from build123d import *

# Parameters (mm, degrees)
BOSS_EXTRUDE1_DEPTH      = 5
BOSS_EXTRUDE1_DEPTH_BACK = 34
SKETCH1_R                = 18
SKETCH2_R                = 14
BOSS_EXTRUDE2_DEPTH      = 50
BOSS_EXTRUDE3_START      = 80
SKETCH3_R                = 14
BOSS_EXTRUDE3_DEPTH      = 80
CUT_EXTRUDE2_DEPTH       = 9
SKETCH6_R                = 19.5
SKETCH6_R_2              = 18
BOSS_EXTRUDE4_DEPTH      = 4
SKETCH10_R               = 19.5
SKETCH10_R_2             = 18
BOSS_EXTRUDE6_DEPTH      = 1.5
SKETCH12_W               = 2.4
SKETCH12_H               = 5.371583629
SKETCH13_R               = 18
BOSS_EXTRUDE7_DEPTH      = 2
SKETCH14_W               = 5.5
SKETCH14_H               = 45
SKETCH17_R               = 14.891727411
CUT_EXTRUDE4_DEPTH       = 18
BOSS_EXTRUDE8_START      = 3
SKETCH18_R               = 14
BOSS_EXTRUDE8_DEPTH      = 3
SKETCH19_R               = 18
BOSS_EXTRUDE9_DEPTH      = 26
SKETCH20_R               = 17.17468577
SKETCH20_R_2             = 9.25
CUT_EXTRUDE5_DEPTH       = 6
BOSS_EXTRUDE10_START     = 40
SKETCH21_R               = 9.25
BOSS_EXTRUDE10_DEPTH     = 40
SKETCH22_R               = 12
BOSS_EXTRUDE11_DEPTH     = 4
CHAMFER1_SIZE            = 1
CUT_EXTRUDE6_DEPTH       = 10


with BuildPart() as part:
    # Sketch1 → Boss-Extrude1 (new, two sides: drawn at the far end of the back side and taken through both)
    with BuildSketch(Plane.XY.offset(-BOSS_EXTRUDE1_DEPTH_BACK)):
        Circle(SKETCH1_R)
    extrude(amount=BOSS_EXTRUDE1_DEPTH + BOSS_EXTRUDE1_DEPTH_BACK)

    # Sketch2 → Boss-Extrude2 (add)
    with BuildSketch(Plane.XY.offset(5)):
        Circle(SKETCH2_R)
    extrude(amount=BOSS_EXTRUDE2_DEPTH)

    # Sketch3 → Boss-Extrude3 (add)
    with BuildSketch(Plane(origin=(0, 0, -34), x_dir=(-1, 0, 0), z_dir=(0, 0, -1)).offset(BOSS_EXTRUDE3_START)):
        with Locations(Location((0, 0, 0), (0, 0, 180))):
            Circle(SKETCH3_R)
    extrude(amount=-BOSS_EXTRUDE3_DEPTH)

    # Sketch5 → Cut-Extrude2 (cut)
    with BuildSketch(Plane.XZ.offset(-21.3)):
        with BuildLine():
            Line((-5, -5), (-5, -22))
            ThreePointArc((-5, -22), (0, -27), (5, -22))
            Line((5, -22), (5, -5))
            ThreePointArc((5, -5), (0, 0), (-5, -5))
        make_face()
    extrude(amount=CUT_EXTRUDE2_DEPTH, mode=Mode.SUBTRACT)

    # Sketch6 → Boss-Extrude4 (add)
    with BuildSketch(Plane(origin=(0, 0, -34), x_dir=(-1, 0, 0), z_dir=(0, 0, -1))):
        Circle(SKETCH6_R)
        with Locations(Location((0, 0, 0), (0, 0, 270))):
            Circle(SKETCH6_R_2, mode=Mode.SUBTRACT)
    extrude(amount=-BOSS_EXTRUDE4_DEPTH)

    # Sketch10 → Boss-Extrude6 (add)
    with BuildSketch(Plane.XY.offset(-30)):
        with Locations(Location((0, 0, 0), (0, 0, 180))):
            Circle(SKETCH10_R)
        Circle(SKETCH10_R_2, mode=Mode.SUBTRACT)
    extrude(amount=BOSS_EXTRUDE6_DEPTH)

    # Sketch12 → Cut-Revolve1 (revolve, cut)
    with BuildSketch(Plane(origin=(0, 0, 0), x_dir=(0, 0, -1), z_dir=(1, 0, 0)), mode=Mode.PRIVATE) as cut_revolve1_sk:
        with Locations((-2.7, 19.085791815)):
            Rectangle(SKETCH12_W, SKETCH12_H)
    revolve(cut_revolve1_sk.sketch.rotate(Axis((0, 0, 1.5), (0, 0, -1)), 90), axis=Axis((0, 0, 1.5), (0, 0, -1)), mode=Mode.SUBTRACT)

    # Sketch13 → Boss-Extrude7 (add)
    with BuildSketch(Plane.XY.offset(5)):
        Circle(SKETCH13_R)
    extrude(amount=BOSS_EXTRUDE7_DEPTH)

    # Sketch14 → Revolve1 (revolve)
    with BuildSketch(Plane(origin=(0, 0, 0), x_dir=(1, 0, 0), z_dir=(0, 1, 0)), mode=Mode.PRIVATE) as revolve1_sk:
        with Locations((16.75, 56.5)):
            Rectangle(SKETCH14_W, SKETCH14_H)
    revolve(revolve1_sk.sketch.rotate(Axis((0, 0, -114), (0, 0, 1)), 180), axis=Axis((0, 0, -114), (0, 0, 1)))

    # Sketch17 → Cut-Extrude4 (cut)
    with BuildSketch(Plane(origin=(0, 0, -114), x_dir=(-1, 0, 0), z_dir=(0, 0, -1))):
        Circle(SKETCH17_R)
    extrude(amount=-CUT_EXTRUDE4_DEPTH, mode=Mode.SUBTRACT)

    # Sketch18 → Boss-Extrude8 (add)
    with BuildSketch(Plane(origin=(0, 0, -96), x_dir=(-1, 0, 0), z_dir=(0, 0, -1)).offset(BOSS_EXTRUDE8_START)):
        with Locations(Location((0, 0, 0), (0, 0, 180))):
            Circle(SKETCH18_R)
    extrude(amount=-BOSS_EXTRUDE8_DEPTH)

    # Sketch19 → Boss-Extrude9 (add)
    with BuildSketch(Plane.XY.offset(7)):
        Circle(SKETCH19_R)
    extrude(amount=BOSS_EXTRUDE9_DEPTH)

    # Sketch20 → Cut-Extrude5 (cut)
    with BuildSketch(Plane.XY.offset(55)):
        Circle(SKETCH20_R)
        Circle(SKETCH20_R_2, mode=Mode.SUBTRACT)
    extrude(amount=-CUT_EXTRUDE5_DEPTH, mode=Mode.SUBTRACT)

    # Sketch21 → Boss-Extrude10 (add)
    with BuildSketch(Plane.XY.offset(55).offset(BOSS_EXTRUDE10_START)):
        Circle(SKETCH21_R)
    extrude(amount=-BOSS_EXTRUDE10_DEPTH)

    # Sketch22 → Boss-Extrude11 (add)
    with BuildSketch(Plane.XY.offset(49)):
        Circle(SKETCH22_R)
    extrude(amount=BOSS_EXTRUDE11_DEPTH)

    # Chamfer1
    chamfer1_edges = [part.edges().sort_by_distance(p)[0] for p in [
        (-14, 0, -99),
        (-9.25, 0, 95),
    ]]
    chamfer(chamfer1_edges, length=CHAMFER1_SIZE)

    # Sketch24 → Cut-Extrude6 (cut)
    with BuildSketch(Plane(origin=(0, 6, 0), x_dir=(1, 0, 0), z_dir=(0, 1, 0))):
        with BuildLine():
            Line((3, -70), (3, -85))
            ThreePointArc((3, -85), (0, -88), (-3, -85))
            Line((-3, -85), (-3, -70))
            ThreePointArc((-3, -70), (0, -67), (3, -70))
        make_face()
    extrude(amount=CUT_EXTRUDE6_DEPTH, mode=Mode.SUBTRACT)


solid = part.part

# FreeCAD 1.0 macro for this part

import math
import FreeCAD as App
import Part
import Sketcher

V = App.Vector
Q = App.Units.Quantity


def edges_at(feature, points):
    """Names of the edges that pass closest to the given points."""
    edges = feature.Shape.Edges
    near = lambda p: min(range(len(edges)), key=lambda i: edges[i].distToShape(Part.Vertex(*p))[0])
    return sorted({f"Edge{near(p) + 1}" for p in points})

doc = App.newDocument("Part")
body = doc.addObject("PartDesign::Body", "Body")

# Sketch on XY plane
sketch1 = body.newObject("Sketcher::SketchObject", "Sketch")
sketch1.AttachmentSupport = (doc.getObject("XY_Plane"), [""])
sketch1.MapMode = "FlatFace"
sketch1.addGeometry(Part.Circle(V(0, 0, 0), V(0, 0, 1), 18), False)
sketch1.addConstraint(Sketcher.Constraint("Coincident", 0, 3, -1, 1))
sketch1.addConstraint(Sketcher.Constraint("Diameter", 0, Q("36 mm")))
pad1 = body.newObject("PartDesign::Pad", "Pad")
pad1.Profile = sketch1
pad1.Type = "TwoLengths"
pad1.Length = 5
pad1.Length2 = 34

# Sketch on XY plane
sketch2 = body.newObject("Sketcher::SketchObject", "Sketch001")
sketch2.AttachmentSupport = (doc.getObject("XY_Plane"), [""])
sketch2.MapMode = "FlatFace"
sketch2.AttachmentOffset = App.Placement(V(0, 0, 5), App.Rotation())
sketch2.addGeometry(Part.Circle(V(0, 0, 0), V(0, 0, 1), 14), False)
sketch2.addConstraint(Sketcher.Constraint("Coincident", 0, 3, -1, 1))
sketch2.addConstraint(Sketcher.Constraint("Diameter", 0, Q("28 mm")))
pad2 = body.newObject("PartDesign::Pad", "Pad001")
pad2.Profile = sketch2
pad2.Length = 50

# Sketch on XY plane
sketch3 = body.newObject("Sketcher::SketchObject", "Sketch002")
sketch3.AttachmentSupport = (doc.getObject("XY_Plane"), [""])
sketch3.MapMode = "FlatFace"
sketch3.AttachmentOffset = App.Placement(V(0, 0, -114), App.Rotation())
sketch3.addGeometry(Part.Circle(V(0, 0, 0), V(0, 0, 1), 14), False)
sketch3.addConstraint(Sketcher.Constraint("Coincident", 0, 3, -1, 1))
sketch3.addConstraint(Sketcher.Constraint("Diameter", 0, Q("28 mm")))
pad3 = body.newObject("PartDesign::Pad", "Pad002")
pad3.Profile = sketch3
pad3.Length = 80

# Sketch on XZ plane
sketch4 = body.newObject("Sketcher::SketchObject", "Sketch003")
sketch4.AttachmentSupport = (doc.getObject("XZ_Plane"), [""])
sketch4.MapMode = "FlatFace"
sketch4.AttachmentOffset = App.Placement(V(0, 0, -21.3), App.Rotation())
sketch4.addGeometry(Part.LineSegment(V(-5, -5, 0), V(-5, -22, 0)), False)
sketch4.addGeometry(Part.ArcOfCircle(Part.Circle(V(0, -22, 0), V(0, 0, 1), 5), math.radians(180), math.radians(360)), False)
sketch4.addGeometry(Part.LineSegment(V(5, -22, 0), V(5, -5, 0)), False)
sketch4.addGeometry(Part.ArcOfCircle(Part.Circle(V(0, -5, 0), V(0, 0, 1), 5), math.radians(0), math.radians(180)), False)
sketch4.addConstraint(Sketcher.Constraint("Tangent", 0, 2, 1, 1))
sketch4.addConstraint(Sketcher.Constraint("Tangent", 1, 2, 2, 1))
sketch4.addConstraint(Sketcher.Constraint("Tangent", 2, 2, 3, 1))
sketch4.addConstraint(Sketcher.Constraint("Tangent", 3, 2, 0, 1))
sketch4.addConstraint(Sketcher.Constraint("Vertical", 0))
sketch4.addConstraint(Sketcher.Constraint("Vertical", 2))
sketch4.addConstraint(Sketcher.Constraint("PointOnObject", 1, 3, -2))
sketch4.addConstraint(Sketcher.Constraint("Radius", 1, Q("5 mm")))
sketch4.addConstraint(Sketcher.Constraint("DistanceY", 0, 2, 0, 1, Q("17 mm")))
sketch4.addConstraint(Sketcher.Constraint("DistanceY", 1, 3, -1, 1, Q("22 mm")))
pocket1 = body.newObject("PartDesign::Pocket", "Pocket")
pocket1.Profile = sketch4
pocket1.Length = 9
pocket1.Reversed = True

# Sketch on XY plane
sketch5 = body.newObject("Sketcher::SketchObject", "Sketch004")
sketch5.AttachmentSupport = (doc.getObject("XY_Plane"), [""])
sketch5.MapMode = "FlatFace"
sketch5.AttachmentOffset = App.Placement(V(0, 0, -34), App.Rotation())
sketch5.addGeometry(Part.Circle(V(0, 0, 0), V(0, 0, 1), 20), False)
sketch5.addGeometry(Part.Circle(V(0, 0, 0), V(0, 0, 1), 18), False)
sketch5.addConstraint(Sketcher.Constraint("Coincident", 0, 3, -1, 1))
sketch5.addConstraint(Sketcher.Constraint("Coincident", 1, 3, -1, 1))
sketch5.addConstraint(Sketcher.Constraint("Diameter", 0, Q("39 mm")))
sketch5.addConstraint(Sketcher.Constraint("Diameter", 1, Q("36 mm")))
pad4 = body.newObject("PartDesign::Pad", "Pad003")
pad4.Profile = sketch5
pad4.Length = 4

# Sketch on XY plane
sketch6 = body.newObject("Sketcher::SketchObject", "Sketch005")
sketch6.AttachmentSupport = (doc.getObject("XY_Plane"), [""])
sketch6.MapMode = "FlatFace"
sketch6.AttachmentOffset = App.Placement(V(0, 0, -30), App.Rotation())
sketch6.addGeometry(Part.Circle(V(0, 0, 0), V(0, 0, 1), 20), False)
sketch6.addGeometry(Part.Circle(V(0, 0, 0), V(0, 0, 1), 18), False)
sketch6.addConstraint(Sketcher.Constraint("Coincident", 0, 3, -1, 1))
sketch6.addConstraint(Sketcher.Constraint("Coincident", 1, 3, -1, 1))
sketch6.addConstraint(Sketcher.Constraint("Diameter", 0, Q("39 mm")))
sketch6.addConstraint(Sketcher.Constraint("Diameter", 1, Q("36 mm")))
pad5 = body.newObject("PartDesign::Pad", "Pad004")
pad5.Profile = sketch6
pad5.Length = 1.5

# Sketch on YZ plane
sketch7 = body.newObject("Sketcher::SketchObject", "Sketch006")
sketch7.AttachmentSupport = (doc.getObject("YZ_Plane"), [""])
sketch7.MapMode = "FlatFace"
sketch7.addGeometry(Part.LineSegment(V(21.8, 3.9, 0), V(16.4, 3.9, 0)), False)
sketch7.addGeometry(Part.LineSegment(V(16.4, 3.9, 0), V(16.4, 1.5, 0)), False)
sketch7.addGeometry(Part.LineSegment(V(16.4, 1.5, 0), V(21.8, 1.5, 0)), False)
sketch7.addGeometry(Part.LineSegment(V(21.8, 1.5, 0), V(21.8, 3.9, 0)), False)
sketch7.addConstraint(Sketcher.Constraint("Coincident", 0, 2, 1, 1))
sketch7.addConstraint(Sketcher.Constraint("Coincident", 1, 2, 2, 1))
sketch7.addConstraint(Sketcher.Constraint("Coincident", 2, 2, 3, 1))
sketch7.addConstraint(Sketcher.Constraint("Coincident", 3, 2, 0, 1))
sketch7.addConstraint(Sketcher.Constraint("Horizontal", 0))
sketch7.addConstraint(Sketcher.Constraint("Vertical", 1))
sketch7.addConstraint(Sketcher.Constraint("Horizontal", 2))
sketch7.addConstraint(Sketcher.Constraint("Vertical", 3))
sketch7.addConstraint(Sketcher.Constraint("DistanceY", 1, 2, 1, 1, Q("2.4 mm")))
sketch7.addConstraint(Sketcher.Constraint("DistanceX", -1, 1, 0, 2, Q("16.4 mm")))
sketch7.addConstraint(Sketcher.Constraint("DistanceY", -1, 1, 0, 2, Q("3.9 mm")))
sketch7.addConstraint(Sketcher.Constraint("DistanceX", 0, 2, 0, 1, Q("5.371584 mm")))
groove = body.newObject("PartDesign::Groove", "Groove")
groove.Profile = sketch7
groove.ReferenceAxis = (sketch7, ["V_Axis"])
groove.Angle = 360

# Sketch on XY plane
sketch8 = body.newObject("Sketcher::SketchObject", "Sketch007")
sketch8.AttachmentSupport = (doc.getObject("XY_Plane"), [""])
sketch8.MapMode = "FlatFace"
sketch8.AttachmentOffset = App.Placement(V(0, 0, 5), App.Rotation())
sketch8.addGeometry(Part.Circle(V(0, 0, 0), V(0, 0, 1), 18), False)
sketch8.addConstraint(Sketcher.Constraint("Coincident", 0, 3, -1, 1))
sketch8.addConstraint(Sketcher.Constraint("Diameter", 0, Q("36 mm")))
pad6 = body.newObject("PartDesign::Pad", "Pad005")
pad6.Profile = sketch8
pad6.Length = 2

# Sketch on XZ plane
sketch9 = body.newObject("Sketcher::SketchObject", "Sketch008")
sketch9.AttachmentSupport = (doc.getObject("XZ_Plane"), [""])
sketch9.MapMode = "FlatFace"
sketch9.addGeometry(Part.LineSegment(V(14, -79, 0), V(14, -34, 0)), False)
sketch9.addGeometry(Part.LineSegment(V(14, -34, 0), V(20, -34, 0)), False)
sketch9.addGeometry(Part.LineSegment(V(20, -34, 0), V(20, -79, 0)), False)
sketch9.addGeometry(Part.LineSegment(V(20, -79, 0), V(14, -79, 0)), False)
sketch9.addConstraint(Sketcher.Constraint("Coincident", 0, 2, 1, 1))
sketch9.addConstraint(Sketcher.Constraint("Coincident", 1, 2, 2, 1))
sketch9.addConstraint(Sketcher.Constraint("Coincident", 2, 2, 3, 1))
sketch9.addConstraint(Sketcher.Constraint("Coincident", 3, 2, 0, 1))
sketch9.addConstraint(Sketcher.Constraint("Vertical", 0))
sketch9.addConstraint(Sketcher.Constraint("Horizontal", 1))
sketch9.addConstraint(Sketcher.Constraint("Vertical", 2))
sketch9.addConstraint(Sketcher.Constraint("Horizontal", 3))
sketch9.addConstraint(Sketcher.Constraint("DistanceY", 0, 1, 0, 2, Q("45 mm")))
sketch9.addConstraint(Sketcher.Constraint("DistanceX", 1, 1, 1, 2, Q("5.5 mm")))
sketch9.addConstraint(Sketcher.Constraint("DistanceX", -1, 1, 0, 2, Q("14 mm")))
sketch9.addConstraint(Sketcher.Constraint("DistanceY", 0, 2, -1, 1, Q("34 mm")))
revolution = body.newObject("PartDesign::Revolution", "Revolution")
revolution.Profile = sketch9
revolution.ReferenceAxis = (sketch9, ["V_Axis"])
revolution.Angle = 360

# Sketch on XY plane
sketch10 = body.newObject("Sketcher::SketchObject", "Sketch009")
sketch10.AttachmentSupport = (doc.getObject("XY_Plane"), [""])
sketch10.MapMode = "FlatFace"
sketch10.AttachmentOffset = App.Placement(V(0, 0, -114), App.Rotation())
sketch10.addGeometry(Part.Circle(V(0, 0, 0), V(0, 0, 1), 15), False)
sketch10.addConstraint(Sketcher.Constraint("Coincident", 0, 3, -1, 1))
sketch10.addConstraint(Sketcher.Constraint("Diameter", 0, Q("29.783455 mm")))
pocket2 = body.newObject("PartDesign::Pocket", "Pocket001")
pocket2.Profile = sketch10
pocket2.Length = 18
pocket2.Reversed = True

# Sketch on XY plane
sketch11 = body.newObject("Sketcher::SketchObject", "Sketch010")
sketch11.AttachmentSupport = (doc.getObject("XY_Plane"), [""])
sketch11.MapMode = "FlatFace"
sketch11.AttachmentOffset = App.Placement(V(0, 0, -99), App.Rotation())
sketch11.addGeometry(Part.Circle(V(0, 0, 0), V(0, 0, 1), 14), False)
sketch11.addConstraint(Sketcher.Constraint("Coincident", 0, 3, -1, 1))
sketch11.addConstraint(Sketcher.Constraint("Diameter", 0, Q("28 mm")))
pad7 = body.newObject("PartDesign::Pad", "Pad006")
pad7.Profile = sketch11
pad7.Length = 3

# Sketch on XY plane
sketch12 = body.newObject("Sketcher::SketchObject", "Sketch011")
sketch12.AttachmentSupport = (doc.getObject("XY_Plane"), [""])
sketch12.MapMode = "FlatFace"
sketch12.AttachmentOffset = App.Placement(V(0, 0, 7), App.Rotation())
sketch12.addGeometry(Part.Circle(V(0, 0, 0), V(0, 0, 1), 18), False)
sketch12.addConstraint(Sketcher.Constraint("Coincident", 0, 3, -1, 1))
sketch12.addConstraint(Sketcher.Constraint("Diameter", 0, Q("36 mm")))
pad8 = body.newObject("PartDesign::Pad", "Pad007")
pad8.Profile = sketch12
pad8.Length = 26

# Sketch on XY plane
sketch13 = body.newObject("Sketcher::SketchObject", "Sketch012")
sketch13.AttachmentSupport = (doc.getObject("XY_Plane"), [""])
sketch13.MapMode = "FlatFace"
sketch13.AttachmentOffset = App.Placement(V(0, 0, 55), App.Rotation())
sketch13.addGeometry(Part.Circle(V(0, 0, 0), V(0, 0, 1), 17), False)
sketch13.addGeometry(Part.Circle(V(0, 0, 0), V(0, 0, 1), 9), False)
sketch13.addConstraint(Sketcher.Constraint("Coincident", 0, 3, -1, 1))
sketch13.addConstraint(Sketcher.Constraint("Coincident", 1, 3, -1, 1))
sketch13.addConstraint(Sketcher.Constraint("Diameter", 1, Q("18.5 mm")))
sketch13.addConstraint(Sketcher.Constraint("Diameter", 0, Q("34.349372 mm")))
pocket3 = body.newObject("PartDesign::Pocket", "Pocket002")
pocket3.Profile = sketch13
pocket3.Length = 6

# Sketch on XY plane
sketch14 = body.newObject("Sketcher::SketchObject", "Sketch013")
sketch14.AttachmentSupport = (doc.getObject("XY_Plane"), [""])
sketch14.MapMode = "FlatFace"
sketch14.AttachmentOffset = App.Placement(V(0, 0, 95), App.Rotation())
sketch14.addGeometry(Part.Circle(V(0, 0, 0), V(0, 0, 1), 9), False)
sketch14.addConstraint(Sketcher.Constraint("Coincident", 0, 3, -1, 1))
sketch14.addConstraint(Sketcher.Constraint("Diameter", 0, Q("18.5 mm")))
pad9 = body.newObject("PartDesign::Pad", "Pad008")
pad9.Profile = sketch14
pad9.Length = 40
pad9.Reversed = True

# Sketch on XY plane
sketch15 = body.newObject("Sketcher::SketchObject", "Sketch014")
sketch15.AttachmentSupport = (doc.getObject("XY_Plane"), [""])
sketch15.MapMode = "FlatFace"
sketch15.AttachmentOffset = App.Placement(V(0, 0, 49), App.Rotation())
sketch15.addGeometry(Part.Circle(V(0, 0, 0), V(0, 0, 1), 12), False)
sketch15.addConstraint(Sketcher.Constraint("Coincident", 0, 3, -1, 1))
sketch15.addConstraint(Sketcher.Constraint("Diameter", 0, Q("24 mm")))
pad10 = body.newObject("PartDesign::Pad", "Pad009")
pad10.Profile = sketch15
pad10.Length = 4
doc.recompute()

chamfer = body.newObject("PartDesign::Chamfer", "Chamfer")
chamfer.Base = (pad10, edges_at(pad10, [(-14, 0, -99), (-9.25, 0, 95)]))
chamfer.Size = 1

# Sketch on XZ plane
sketch16 = body.newObject("Sketcher::SketchObject", "Sketch015")
sketch16.AttachmentSupport = (doc.getObject("XZ_Plane"), [""])
sketch16.MapMode = "FlatFace"
sketch16.AttachmentOffset = App.Placement(V(0, 0, -6), App.Rotation())
sketch16.addGeometry(Part.LineSegment(V(3, 85, 0), V(3, 70, 0)), False)
sketch16.addGeometry(Part.ArcOfCircle(Part.Circle(V(0, 70, 0), V(0, 0, 1), 3), math.radians(180), math.radians(360)), False)
sketch16.addGeometry(Part.LineSegment(V(-3, 70, 0), V(-3, 85, 0)), False)
sketch16.addGeometry(Part.ArcOfCircle(Part.Circle(V(0, 85, 0), V(0, 0, 1), 3), math.radians(0), math.radians(180)), False)
sketch16.addConstraint(Sketcher.Constraint("Tangent", 0, 2, 1, 2))
sketch16.addConstraint(Sketcher.Constraint("Tangent", 1, 1, 2, 1))
sketch16.addConstraint(Sketcher.Constraint("Tangent", 2, 2, 3, 2))
sketch16.addConstraint(Sketcher.Constraint("Tangent", 3, 1, 0, 1))
sketch16.addConstraint(Sketcher.Constraint("Vertical", 0))
sketch16.addConstraint(Sketcher.Constraint("Vertical", 2))
sketch16.addConstraint(Sketcher.Constraint("PointOnObject", 1, 3, -2))
sketch16.addConstraint(Sketcher.Constraint("Radius", 1, Q("3 mm")))
sketch16.addConstraint(Sketcher.Constraint("DistanceY", 0, 2, 0, 1, Q("15 mm")))
sketch16.addConstraint(Sketcher.Constraint("DistanceY", -1, 1, 1, 3, Q("70 mm")))
pocket4 = body.newObject("PartDesign::Pocket", "Pocket003")
pocket4.Profile = sketch16
pocket4.Length = 10

doc.recompute()
